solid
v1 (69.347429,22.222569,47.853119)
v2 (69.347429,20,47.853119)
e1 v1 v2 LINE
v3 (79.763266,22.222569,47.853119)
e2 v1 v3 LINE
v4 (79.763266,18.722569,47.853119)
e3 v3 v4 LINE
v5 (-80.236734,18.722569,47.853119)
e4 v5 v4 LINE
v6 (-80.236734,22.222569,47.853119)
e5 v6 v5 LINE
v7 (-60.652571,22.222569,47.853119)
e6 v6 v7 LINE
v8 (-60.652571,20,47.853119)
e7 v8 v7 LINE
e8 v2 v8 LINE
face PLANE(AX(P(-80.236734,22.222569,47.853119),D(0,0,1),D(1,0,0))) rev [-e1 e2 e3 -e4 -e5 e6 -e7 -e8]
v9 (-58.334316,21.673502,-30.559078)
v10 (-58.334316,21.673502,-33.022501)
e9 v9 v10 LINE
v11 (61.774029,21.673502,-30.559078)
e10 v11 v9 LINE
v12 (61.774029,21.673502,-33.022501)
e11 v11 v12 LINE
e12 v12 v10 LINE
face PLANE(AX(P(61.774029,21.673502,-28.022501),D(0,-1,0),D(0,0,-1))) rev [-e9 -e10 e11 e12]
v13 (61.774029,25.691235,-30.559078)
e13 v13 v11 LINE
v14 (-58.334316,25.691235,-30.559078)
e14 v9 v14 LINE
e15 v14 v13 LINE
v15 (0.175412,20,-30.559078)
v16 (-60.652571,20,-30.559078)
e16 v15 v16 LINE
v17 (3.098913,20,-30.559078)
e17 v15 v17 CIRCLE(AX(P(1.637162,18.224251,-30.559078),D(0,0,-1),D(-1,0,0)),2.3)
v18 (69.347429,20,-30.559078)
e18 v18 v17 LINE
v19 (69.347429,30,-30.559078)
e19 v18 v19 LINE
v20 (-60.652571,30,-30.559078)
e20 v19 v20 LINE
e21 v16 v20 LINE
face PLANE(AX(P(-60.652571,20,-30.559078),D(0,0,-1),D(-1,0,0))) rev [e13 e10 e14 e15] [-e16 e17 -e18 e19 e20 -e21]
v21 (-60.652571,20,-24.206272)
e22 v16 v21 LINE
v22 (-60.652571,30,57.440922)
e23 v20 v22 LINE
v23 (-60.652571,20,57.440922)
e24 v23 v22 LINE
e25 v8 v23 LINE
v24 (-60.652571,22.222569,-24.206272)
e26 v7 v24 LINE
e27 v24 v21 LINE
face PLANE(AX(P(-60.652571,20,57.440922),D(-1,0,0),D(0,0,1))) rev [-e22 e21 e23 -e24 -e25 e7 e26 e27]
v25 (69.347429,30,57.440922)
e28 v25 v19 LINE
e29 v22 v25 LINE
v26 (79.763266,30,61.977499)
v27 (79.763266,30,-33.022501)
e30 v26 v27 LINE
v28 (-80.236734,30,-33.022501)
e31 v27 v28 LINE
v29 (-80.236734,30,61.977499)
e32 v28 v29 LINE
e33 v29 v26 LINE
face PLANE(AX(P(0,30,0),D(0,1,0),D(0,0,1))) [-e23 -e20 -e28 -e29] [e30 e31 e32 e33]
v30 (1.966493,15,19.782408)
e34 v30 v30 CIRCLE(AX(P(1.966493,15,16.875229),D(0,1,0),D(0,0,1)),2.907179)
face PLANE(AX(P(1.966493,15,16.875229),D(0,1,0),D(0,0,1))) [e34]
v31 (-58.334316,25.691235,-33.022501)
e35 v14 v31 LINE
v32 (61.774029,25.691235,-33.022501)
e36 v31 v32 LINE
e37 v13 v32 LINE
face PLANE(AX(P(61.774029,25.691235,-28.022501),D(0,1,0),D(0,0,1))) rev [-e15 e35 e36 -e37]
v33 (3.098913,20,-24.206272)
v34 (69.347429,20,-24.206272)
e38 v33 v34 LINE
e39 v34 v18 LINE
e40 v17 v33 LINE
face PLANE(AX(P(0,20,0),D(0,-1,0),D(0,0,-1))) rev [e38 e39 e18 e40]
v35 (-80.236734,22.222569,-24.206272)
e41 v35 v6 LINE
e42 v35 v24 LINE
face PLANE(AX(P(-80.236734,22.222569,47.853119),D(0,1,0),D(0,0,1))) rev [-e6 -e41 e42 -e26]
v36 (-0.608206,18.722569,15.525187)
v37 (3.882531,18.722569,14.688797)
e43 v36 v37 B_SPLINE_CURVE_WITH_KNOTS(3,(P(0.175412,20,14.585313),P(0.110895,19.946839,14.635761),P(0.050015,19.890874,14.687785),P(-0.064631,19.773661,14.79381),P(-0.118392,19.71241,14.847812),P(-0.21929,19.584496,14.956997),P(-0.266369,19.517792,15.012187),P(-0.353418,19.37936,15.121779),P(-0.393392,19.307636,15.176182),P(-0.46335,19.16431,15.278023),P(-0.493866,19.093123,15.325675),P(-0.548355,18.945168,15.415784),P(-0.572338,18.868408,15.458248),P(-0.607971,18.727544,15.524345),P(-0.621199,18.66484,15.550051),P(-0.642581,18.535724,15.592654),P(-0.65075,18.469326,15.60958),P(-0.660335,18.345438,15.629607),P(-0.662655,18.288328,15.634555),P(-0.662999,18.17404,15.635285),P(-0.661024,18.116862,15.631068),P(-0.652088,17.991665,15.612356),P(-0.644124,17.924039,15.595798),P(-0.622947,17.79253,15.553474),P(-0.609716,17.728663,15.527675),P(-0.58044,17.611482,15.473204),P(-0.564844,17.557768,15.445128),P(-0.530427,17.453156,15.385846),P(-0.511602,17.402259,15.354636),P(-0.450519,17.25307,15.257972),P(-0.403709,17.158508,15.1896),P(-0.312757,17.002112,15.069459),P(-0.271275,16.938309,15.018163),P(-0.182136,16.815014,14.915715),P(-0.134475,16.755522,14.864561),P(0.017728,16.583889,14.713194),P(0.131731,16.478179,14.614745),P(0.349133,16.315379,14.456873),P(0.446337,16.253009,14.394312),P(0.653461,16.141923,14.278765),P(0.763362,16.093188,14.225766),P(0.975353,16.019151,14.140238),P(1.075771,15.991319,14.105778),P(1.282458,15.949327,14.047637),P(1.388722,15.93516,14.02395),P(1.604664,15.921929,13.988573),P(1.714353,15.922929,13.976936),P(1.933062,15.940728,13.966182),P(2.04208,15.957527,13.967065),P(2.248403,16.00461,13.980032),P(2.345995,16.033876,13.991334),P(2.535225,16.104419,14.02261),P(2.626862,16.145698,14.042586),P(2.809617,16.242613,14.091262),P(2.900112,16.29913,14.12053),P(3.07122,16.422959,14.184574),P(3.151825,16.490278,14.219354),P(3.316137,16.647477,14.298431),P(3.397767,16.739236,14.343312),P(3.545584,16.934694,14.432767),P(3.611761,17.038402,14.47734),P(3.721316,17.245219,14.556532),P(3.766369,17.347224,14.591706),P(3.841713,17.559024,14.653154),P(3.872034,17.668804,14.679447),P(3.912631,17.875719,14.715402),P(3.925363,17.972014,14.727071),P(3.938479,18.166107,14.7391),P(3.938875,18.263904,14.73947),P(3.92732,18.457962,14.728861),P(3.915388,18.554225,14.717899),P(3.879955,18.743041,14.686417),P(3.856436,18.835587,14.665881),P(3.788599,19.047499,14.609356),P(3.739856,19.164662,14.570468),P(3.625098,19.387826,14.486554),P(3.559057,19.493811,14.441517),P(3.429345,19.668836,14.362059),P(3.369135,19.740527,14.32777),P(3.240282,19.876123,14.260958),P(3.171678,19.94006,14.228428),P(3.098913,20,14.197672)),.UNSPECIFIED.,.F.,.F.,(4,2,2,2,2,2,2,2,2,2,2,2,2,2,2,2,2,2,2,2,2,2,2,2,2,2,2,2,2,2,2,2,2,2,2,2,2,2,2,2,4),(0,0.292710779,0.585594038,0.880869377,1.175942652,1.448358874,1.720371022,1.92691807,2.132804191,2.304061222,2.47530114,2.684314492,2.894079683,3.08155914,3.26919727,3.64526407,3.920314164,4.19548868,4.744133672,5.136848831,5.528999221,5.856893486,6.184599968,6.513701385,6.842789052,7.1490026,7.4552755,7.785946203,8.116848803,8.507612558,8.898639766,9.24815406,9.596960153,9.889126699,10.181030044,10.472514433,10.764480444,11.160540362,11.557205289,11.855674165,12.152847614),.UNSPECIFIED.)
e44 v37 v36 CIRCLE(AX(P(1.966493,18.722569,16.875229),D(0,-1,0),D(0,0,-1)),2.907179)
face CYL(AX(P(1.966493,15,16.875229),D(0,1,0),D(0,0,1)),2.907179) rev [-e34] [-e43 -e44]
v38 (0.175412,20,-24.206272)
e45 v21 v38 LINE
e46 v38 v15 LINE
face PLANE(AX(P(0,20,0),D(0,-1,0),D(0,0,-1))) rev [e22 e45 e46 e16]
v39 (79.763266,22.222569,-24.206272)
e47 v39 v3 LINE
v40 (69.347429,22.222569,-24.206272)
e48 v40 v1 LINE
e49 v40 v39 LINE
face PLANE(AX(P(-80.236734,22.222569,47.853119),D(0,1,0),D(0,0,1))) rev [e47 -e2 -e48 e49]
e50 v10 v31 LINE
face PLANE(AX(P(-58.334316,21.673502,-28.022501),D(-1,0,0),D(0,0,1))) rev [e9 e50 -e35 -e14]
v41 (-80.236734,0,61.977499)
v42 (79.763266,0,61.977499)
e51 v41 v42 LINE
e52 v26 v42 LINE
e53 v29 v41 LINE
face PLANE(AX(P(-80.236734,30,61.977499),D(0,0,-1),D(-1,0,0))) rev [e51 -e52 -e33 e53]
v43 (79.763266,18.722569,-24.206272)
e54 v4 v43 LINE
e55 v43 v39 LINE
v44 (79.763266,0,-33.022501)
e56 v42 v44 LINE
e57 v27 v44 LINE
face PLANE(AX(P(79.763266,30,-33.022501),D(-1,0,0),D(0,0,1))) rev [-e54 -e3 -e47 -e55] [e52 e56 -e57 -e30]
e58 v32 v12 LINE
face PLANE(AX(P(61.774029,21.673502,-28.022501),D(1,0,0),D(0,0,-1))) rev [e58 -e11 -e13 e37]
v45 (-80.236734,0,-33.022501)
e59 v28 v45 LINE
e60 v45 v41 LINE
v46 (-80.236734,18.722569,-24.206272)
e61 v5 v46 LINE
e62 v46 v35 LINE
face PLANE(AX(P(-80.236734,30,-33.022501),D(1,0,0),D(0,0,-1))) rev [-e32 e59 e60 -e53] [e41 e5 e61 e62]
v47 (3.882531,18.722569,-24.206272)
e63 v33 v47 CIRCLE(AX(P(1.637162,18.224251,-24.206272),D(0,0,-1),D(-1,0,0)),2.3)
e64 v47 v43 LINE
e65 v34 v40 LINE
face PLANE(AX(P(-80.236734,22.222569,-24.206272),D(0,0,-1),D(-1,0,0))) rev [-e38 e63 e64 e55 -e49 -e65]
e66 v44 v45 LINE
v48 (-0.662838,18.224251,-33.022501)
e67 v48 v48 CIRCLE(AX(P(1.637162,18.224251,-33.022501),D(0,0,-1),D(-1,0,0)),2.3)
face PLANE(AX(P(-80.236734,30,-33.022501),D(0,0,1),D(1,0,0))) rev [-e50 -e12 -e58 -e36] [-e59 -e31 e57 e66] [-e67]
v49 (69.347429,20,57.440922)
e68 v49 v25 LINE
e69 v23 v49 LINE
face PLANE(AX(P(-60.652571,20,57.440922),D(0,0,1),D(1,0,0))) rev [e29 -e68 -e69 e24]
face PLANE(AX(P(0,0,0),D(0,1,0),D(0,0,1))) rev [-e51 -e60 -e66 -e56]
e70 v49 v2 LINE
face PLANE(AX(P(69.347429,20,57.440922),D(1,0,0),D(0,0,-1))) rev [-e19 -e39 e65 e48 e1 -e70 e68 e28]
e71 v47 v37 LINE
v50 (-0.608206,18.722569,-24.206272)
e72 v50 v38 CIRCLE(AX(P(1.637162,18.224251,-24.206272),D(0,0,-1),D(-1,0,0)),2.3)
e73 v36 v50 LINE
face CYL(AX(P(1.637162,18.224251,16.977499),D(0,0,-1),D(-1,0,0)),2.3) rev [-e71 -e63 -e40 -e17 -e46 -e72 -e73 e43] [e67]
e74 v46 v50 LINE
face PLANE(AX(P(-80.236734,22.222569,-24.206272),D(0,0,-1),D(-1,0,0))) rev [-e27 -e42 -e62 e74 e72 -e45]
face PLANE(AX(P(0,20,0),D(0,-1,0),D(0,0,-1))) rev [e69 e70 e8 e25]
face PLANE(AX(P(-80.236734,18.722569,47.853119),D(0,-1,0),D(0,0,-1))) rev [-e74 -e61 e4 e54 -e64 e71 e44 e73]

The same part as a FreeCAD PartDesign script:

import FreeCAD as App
import Part
import Sketcher
from FreeCAD import Vector
Q = App.Units.Quantity


def add_polygon(sketch, points):
    """Adds a closed chain of lines whose ends are joined by coincident constraints."""
    first, n = sketch.GeometryCount, len(points)
    for a, b in zip(points, points[1:] + points[:1]):
        sketch.addGeometry(Part.LineSegment(App.Vector(*a, 0), App.Vector(*b, 0)), False)
    for i in range(n):
        sketch.addConstraint(Sketcher.Constraint("Coincident", first + i, 2, first + (i + 1) % n, 1))

doc = App.newDocument("Part")
body = doc.addObject("PartDesign::Body", "Body")

# Sketch on XZ plane
sketch1 = doc.addObject("Sketcher::SketchObject", "Sketch")
body.addObject(sketch1)
sketch1.AttachmentSupport = (doc.XZ_Plane, [""])
sketch1.MapMode = "FlatFace"
add_polygon(sketch1, [(-80, -33), (-80, 62), (80, 62), (80, -33)])  # lines 0-3
sketch1.addConstraint([
    Sketcher.Constraint("Vertical", 0),
    Sketcher.Constraint("Horizontal", 1),
    Sketcher.Constraint("Vertical", 2),
    Sketcher.Constraint("Horizontal", 3),
    Sketcher.Constraint("DistanceX", 1, 1, 1, 2, Q("160 mm")),
    Sketcher.Constraint("DistanceY", 0, 1, 0, 2, Q("95 mm")),
    Sketcher.Constraint("DistanceY", -1, 1, 0, 2, Q("61.977499 mm")),
    Sketcher.Constraint("DistanceX", 0, 2, -1, 1, Q("80.236734 mm")),
])
pad1 = doc.addObject("PartDesign::Pad", "Pad")
body.addObject(pad1)
pad1.Profile = sketch1
pad1.Length = 30
pad1.Reversed = True

# Sketch on XZ plane
sketch2 = doc.addObject("Sketcher::SketchObject", "Sketch001")
body.addObject(sketch2)
sketch2.AttachmentSupport = (doc.XZ_Plane, [""])
sketch2.MapMode = "FlatFace"
sketch2.AttachmentOffset = App.Placement(Vector(0, 0, -30), App.Rotation())
add_polygon(sketch2, [(-61, -31), (-61, 57), (69, 57), (69, -31)])  # lines 0-3
sketch2.addConstraint([
    Sketcher.Constraint("Vertical", 0),
    Sketcher.Constraint("Horizontal", 1),
    Sketcher.Constraint("Vertical", 2),
    Sketcher.Constraint("Horizontal", 3),
    Sketcher.Constraint("DistanceX", 1, 1, 1, 2, Q("130 mm")),
    Sketcher.Constraint("DistanceY", 0, 1, 0, 2, Q("88 mm")),
    Sketcher.Constraint("DistanceX", 0, 2, -1, 1, Q("60.652571 mm")),
    Sketcher.Constraint("DistanceY", -1, 1, 0, 2, Q("57.440922 mm")),
])
pocket1 = doc.addObject("PartDesign::Pocket", "Pocket")
body.addObject(pocket1)
pocket1.Profile = sketch2
pocket1.Length = 10
pocket1.Reversed = True

# Sketch on XY plane
sketch3 = doc.addObject("Sketcher::SketchObject", "Sketch002")
body.addObject(sketch3)
sketch3.AttachmentSupport = (doc.XY_Plane, [""])
sketch3.MapMode = "FlatFace"
sketch3.AttachmentOffset = App.Placement(Vector(0, 0, -33.022501), App.Rotation())
add_polygon(sketch3, [(61.8, 25.7), (61.8, 21.7), (-58.3, 21.7), (-58.3, 25.7)])  # lines 0-3
sketch3.addConstraint([
    Sketcher.Constraint("Vertical", 0),
    Sketcher.Constraint("Horizontal", 1),
    Sketcher.Constraint("Vertical", 2),
    Sketcher.Constraint("Horizontal", 3),
    Sketcher.Constraint("DistanceY", -1, 1, 0, 2, Q("21.673502 mm")),
    Sketcher.Constraint("DistanceX", 1, 2, 1, 1, Q("120.108345 mm")),
    Sketcher.Constraint("DistanceY", 0, 2, 0, 1, Q("4.017734 mm")),
    Sketcher.Constraint("DistanceX", -1, 1, 0, 2, Q("61.774029 mm")),
])
pocket2 = doc.addObject("PartDesign::Pocket", "Pocket001")
body.addObject(pocket2)
pocket2.Profile = sketch3
pocket2.Length = 5
pocket2.Reversed = True

# Sketch on YZ plane
sketch4 = doc.addObject("Sketcher::SketchObject", "Sketch003")
body.addObject(sketch4)
sketch4.AttachmentSupport = (doc.YZ_Plane, [""])
sketch4.MapMode = "FlatFace"
sketch4.AttachmentOffset = App.Placement(Vector(0, 0, 89.763266), App.Rotation())
add_polygon(sketch4, [(22.2, 47.9), (18.7, 47.9), (18.7, -24.2), (22.2, -24.2)])  # lines 0-3
sketch4.addConstraint([
    Sketcher.Constraint("Horizontal", 0),
    Sketcher.Constraint("Vertical", 1),
    Sketcher.Constraint("Horizontal", 2),
    Sketcher.Constraint("Vertical", 3),
    Sketcher.Constraint("DistanceX", 0, 2, 0, 1, Q("3.5 mm")),
    Sketcher.Constraint("DistanceY", 1, 2, 1, 1, Q("72.059392 mm")),
    Sketcher.Constraint("DistanceX", -1, 1, 0, 2, Q("18.722569 mm")),
    Sketcher.Constraint("DistanceY", -1, 1, 0, 2, Q("47.853119 mm")),
])
pocket3 = doc.addObject("PartDesign::Pocket", "Pocket002")
body.addObject(pocket3)
pocket3.Profile = sketch4
pocket3.Type = "ThroughAll"
pocket3.Midplane = True

# Sketch on XY plane
sketch5 = doc.addObject("Sketcher::SketchObject", "Sketch004")
body.addObject(sketch5)
sketch5.AttachmentSupport = (doc.XY_Plane, [""])
sketch5.MapMode = "FlatFace"
sketch5.AttachmentOffset = App.Placement(Vector(0, 0, -33.022501), App.Rotation())
sketch5.addGeometry(Part.Circle(Vector(1.6, 18.2, 0), Vector(0, 0, 1), 2.3), False)
sketch5.addConstraint([
    Sketcher.Constraint("Diameter", 0, Q("4.6 mm")),
    Sketcher.Constraint("DistanceY", -1, 1, 0, 3, Q("18.224251 mm")),
    Sketcher.Constraint("DistanceX", -1, 1, 0, 3, Q("1.637162 mm")),
])
pocket4 = doc.addObject("PartDesign::Pocket", "Pocket003")
body.addObject(pocket4)
pocket4.Profile = sketch5
pocket4.Length = 50
pocket4.Reversed = True

# Sketch on XZ plane
sketch6 = doc.addObject("Sketcher::SketchObject", "Sketch005")
body.addObject(sketch6)
sketch6.AttachmentSupport = (doc.XZ_Plane, [""])
sketch6.MapMode = "FlatFace"
sketch6.AttachmentOffset = App.Placement(Vector(0, 0, -20), App.Rotation())
sketch6.addGeometry(Part.Circle(Vector(2, 16.9, 0), Vector(0, 0, 1), 2.9), False)
sketch6.addConstraint([
    Sketcher.Constraint("Diameter", 0, Q("5.814358 mm")),
    Sketcher.Constraint("DistanceY", -1, 1, 0, 3, Q("16.875229 mm")),
    Sketcher.Constraint("DistanceX", -1, 1, 0, 3, Q("1.966493 mm")),
])
pocket5 = doc.addObject("PartDesign::Pocket", "Pocket004")
body.addObject(pocket5)
pocket5.Profile = sketch6
pocket5.Length = 5
pocket5.Reversed = True

doc.recompute()
